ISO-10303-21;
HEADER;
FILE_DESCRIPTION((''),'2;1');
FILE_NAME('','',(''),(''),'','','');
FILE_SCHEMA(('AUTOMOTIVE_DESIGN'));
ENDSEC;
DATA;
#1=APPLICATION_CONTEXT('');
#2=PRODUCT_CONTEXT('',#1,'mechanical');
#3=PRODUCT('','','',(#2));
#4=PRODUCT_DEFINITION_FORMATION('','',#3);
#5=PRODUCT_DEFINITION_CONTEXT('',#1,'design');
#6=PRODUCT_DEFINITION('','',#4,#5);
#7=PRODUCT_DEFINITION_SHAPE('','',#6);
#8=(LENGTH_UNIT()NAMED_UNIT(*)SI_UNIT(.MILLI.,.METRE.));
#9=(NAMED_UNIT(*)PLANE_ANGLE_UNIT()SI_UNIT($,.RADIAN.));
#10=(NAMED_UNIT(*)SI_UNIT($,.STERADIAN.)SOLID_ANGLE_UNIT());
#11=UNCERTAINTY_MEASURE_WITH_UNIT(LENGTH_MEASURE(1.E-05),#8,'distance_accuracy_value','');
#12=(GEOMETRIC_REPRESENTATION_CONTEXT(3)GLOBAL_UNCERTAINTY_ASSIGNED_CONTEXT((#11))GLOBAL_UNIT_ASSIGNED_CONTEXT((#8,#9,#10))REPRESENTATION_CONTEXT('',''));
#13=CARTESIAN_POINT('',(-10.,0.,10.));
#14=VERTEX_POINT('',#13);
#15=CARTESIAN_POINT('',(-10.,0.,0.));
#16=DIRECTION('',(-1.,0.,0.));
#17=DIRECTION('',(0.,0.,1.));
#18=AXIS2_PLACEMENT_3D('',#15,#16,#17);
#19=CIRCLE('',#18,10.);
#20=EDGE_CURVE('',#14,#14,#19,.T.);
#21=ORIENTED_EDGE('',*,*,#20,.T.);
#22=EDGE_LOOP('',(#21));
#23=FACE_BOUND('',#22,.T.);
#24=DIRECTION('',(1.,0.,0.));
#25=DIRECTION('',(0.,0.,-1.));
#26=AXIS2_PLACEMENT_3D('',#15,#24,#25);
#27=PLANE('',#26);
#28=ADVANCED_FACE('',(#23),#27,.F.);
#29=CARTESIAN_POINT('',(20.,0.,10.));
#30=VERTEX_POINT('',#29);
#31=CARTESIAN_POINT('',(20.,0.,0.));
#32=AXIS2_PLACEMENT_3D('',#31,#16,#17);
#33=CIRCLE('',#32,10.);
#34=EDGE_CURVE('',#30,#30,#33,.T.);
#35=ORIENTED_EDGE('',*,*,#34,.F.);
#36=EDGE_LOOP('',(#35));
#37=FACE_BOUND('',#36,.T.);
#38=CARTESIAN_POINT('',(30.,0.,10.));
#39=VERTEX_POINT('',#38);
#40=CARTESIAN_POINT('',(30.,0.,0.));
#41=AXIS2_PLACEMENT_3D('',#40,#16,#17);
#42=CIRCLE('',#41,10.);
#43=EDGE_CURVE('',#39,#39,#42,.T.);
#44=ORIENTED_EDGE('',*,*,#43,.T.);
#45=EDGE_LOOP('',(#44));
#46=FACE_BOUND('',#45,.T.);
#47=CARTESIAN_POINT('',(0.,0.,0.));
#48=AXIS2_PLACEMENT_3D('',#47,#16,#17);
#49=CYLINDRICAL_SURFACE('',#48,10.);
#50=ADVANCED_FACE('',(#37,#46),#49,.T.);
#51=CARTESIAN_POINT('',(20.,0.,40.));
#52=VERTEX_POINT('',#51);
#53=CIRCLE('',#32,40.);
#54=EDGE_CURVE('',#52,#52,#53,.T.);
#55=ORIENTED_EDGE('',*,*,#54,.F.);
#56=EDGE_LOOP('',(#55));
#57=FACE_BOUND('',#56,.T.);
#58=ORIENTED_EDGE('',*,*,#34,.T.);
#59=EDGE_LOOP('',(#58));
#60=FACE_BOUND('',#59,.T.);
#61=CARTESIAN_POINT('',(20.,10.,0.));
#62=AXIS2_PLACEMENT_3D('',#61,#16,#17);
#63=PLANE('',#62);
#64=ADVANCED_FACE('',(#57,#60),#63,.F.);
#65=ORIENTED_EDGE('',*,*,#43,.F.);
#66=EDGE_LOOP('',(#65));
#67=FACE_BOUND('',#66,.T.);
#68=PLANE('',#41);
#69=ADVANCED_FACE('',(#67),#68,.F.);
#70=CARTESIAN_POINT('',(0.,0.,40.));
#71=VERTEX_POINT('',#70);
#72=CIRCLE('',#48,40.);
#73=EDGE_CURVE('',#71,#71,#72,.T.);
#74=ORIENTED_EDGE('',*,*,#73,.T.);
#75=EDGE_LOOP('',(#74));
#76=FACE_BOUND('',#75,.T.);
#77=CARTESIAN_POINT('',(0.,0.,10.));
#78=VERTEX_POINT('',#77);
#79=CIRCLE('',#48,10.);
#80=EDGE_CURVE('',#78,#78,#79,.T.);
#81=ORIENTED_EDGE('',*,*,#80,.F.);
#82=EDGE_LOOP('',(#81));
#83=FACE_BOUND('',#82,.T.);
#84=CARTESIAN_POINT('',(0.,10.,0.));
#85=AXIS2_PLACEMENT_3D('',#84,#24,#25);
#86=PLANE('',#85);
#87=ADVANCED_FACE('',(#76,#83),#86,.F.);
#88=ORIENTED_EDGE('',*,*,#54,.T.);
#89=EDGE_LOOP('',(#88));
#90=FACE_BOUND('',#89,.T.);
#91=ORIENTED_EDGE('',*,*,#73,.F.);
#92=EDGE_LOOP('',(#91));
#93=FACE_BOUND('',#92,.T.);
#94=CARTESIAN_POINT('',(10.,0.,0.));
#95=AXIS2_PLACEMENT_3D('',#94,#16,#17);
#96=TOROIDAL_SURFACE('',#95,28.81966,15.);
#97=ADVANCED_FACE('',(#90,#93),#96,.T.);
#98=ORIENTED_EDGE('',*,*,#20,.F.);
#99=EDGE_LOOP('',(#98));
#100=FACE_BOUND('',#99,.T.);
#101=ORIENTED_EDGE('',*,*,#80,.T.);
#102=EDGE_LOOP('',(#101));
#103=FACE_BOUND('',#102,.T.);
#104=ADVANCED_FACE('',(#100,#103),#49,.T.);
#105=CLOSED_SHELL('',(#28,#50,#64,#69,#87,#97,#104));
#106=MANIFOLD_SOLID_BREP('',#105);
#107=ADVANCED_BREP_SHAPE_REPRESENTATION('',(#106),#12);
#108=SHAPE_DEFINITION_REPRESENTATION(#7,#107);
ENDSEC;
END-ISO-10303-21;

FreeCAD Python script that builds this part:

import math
import FreeCAD as App
import Part
import Sketcher

V = App.Vector

doc = App.newDocument("Part")
body = doc.addObject("PartDesign::Body", "Body")

# Sketch on XY plane
sketch1 = body.newObject("Sketcher::SketchObject", "Sketch")
sketch1.AttachmentSupport = (doc.getObject("XY_Plane"), [""])
sketch1.MapMode = "FlatFace"
sketch1.addGeometry([
    Part.LineSegment(V(30, 0, 0), V(30, 10, 0)),  # 0
    Part.LineSegment(V(30, 10, 0), V(20, 10, 0)),  # 1
    Part.LineSegment(V(20, 10, 0), V(20, 40, 0)),  # 2
    Part.ArcOfCircle(Part.Circle(V(10, 28.81966, 0), V(0, 0, 1), 15), math.radians(48.189685), math.radians(131.810315)),  # 3
    Part.LineSegment(V(0, 40, 0), V(0, 10, 0)),  # 4
    Part.LineSegment(V(0, 10, 0), V(-10, 10, 0)),  # 5
    Part.LineSegment(V(-10, 10, 0), V(-10, 0, 0)),  # 6
    Part.LineSegment(V(-10, 0, 0), V(30, 0, 0)),  # 7
], False)
sketch1.addConstraint([
    Sketcher.Constraint("Coincident", 0, 2, 1, 1),
    Sketcher.Constraint("Coincident", 1, 2, 2, 1),
    Sketcher.Constraint("Coincident", 2, 2, 3, 1),
    Sketcher.Constraint("Coincident", 3, 2, 4, 1),
    Sketcher.Constraint("Coincident", 4, 2, 5, 1),
    Sketcher.Constraint("Coincident", 5, 2, 6, 1),
    Sketcher.Constraint("Coincident", 6, 2, 7, 1),
    Sketcher.Constraint("Coincident", 7, 2, 0, 1),
    Sketcher.Constraint("Vertical", 0),
    Sketcher.Constraint("Horizontal", 1),
    Sketcher.Constraint("Vertical", 2),
    Sketcher.Constraint("Vertical", 4),
    Sketcher.Constraint("Horizontal", 5),
    Sketcher.Constraint("Vertical", 6),
    Sketcher.Constraint("Horizontal", 7),
    Sketcher.Constraint("PointOnObject", 3, 2, -2),
    Sketcher.Constraint("PointOnObject", 6, 2, -1),
    Sketcher.Constraint("Horizontal", 2, 2, 3, 2),
    Sketcher.Constraint("Horizontal", 1, 2, 4, 2),
    Sketcher.Constraint("Equal", 1, 5),
    Sketcher.Constraint("Equal", 5, 0),
    Sketcher.Constraint("Radius", 3, 15.0),
    Sketcher.Constraint("DistanceX", 1, 2, 1, 1, 10.0),
    Sketcher.Constraint("DistanceX", 7, 1, 7, 2, 40.0),
    Sketcher.Constraint("DistanceY", 2, 1, 2, 2, 30.0),
])
revolution = body.newObject("PartDesign::Revolution", "Revolution")
revolution.Profile = sketch1
revolution.ReferenceAxis = (sketch1, ["H_Axis"])
revolution.Angle = 360

doc.recompute()
